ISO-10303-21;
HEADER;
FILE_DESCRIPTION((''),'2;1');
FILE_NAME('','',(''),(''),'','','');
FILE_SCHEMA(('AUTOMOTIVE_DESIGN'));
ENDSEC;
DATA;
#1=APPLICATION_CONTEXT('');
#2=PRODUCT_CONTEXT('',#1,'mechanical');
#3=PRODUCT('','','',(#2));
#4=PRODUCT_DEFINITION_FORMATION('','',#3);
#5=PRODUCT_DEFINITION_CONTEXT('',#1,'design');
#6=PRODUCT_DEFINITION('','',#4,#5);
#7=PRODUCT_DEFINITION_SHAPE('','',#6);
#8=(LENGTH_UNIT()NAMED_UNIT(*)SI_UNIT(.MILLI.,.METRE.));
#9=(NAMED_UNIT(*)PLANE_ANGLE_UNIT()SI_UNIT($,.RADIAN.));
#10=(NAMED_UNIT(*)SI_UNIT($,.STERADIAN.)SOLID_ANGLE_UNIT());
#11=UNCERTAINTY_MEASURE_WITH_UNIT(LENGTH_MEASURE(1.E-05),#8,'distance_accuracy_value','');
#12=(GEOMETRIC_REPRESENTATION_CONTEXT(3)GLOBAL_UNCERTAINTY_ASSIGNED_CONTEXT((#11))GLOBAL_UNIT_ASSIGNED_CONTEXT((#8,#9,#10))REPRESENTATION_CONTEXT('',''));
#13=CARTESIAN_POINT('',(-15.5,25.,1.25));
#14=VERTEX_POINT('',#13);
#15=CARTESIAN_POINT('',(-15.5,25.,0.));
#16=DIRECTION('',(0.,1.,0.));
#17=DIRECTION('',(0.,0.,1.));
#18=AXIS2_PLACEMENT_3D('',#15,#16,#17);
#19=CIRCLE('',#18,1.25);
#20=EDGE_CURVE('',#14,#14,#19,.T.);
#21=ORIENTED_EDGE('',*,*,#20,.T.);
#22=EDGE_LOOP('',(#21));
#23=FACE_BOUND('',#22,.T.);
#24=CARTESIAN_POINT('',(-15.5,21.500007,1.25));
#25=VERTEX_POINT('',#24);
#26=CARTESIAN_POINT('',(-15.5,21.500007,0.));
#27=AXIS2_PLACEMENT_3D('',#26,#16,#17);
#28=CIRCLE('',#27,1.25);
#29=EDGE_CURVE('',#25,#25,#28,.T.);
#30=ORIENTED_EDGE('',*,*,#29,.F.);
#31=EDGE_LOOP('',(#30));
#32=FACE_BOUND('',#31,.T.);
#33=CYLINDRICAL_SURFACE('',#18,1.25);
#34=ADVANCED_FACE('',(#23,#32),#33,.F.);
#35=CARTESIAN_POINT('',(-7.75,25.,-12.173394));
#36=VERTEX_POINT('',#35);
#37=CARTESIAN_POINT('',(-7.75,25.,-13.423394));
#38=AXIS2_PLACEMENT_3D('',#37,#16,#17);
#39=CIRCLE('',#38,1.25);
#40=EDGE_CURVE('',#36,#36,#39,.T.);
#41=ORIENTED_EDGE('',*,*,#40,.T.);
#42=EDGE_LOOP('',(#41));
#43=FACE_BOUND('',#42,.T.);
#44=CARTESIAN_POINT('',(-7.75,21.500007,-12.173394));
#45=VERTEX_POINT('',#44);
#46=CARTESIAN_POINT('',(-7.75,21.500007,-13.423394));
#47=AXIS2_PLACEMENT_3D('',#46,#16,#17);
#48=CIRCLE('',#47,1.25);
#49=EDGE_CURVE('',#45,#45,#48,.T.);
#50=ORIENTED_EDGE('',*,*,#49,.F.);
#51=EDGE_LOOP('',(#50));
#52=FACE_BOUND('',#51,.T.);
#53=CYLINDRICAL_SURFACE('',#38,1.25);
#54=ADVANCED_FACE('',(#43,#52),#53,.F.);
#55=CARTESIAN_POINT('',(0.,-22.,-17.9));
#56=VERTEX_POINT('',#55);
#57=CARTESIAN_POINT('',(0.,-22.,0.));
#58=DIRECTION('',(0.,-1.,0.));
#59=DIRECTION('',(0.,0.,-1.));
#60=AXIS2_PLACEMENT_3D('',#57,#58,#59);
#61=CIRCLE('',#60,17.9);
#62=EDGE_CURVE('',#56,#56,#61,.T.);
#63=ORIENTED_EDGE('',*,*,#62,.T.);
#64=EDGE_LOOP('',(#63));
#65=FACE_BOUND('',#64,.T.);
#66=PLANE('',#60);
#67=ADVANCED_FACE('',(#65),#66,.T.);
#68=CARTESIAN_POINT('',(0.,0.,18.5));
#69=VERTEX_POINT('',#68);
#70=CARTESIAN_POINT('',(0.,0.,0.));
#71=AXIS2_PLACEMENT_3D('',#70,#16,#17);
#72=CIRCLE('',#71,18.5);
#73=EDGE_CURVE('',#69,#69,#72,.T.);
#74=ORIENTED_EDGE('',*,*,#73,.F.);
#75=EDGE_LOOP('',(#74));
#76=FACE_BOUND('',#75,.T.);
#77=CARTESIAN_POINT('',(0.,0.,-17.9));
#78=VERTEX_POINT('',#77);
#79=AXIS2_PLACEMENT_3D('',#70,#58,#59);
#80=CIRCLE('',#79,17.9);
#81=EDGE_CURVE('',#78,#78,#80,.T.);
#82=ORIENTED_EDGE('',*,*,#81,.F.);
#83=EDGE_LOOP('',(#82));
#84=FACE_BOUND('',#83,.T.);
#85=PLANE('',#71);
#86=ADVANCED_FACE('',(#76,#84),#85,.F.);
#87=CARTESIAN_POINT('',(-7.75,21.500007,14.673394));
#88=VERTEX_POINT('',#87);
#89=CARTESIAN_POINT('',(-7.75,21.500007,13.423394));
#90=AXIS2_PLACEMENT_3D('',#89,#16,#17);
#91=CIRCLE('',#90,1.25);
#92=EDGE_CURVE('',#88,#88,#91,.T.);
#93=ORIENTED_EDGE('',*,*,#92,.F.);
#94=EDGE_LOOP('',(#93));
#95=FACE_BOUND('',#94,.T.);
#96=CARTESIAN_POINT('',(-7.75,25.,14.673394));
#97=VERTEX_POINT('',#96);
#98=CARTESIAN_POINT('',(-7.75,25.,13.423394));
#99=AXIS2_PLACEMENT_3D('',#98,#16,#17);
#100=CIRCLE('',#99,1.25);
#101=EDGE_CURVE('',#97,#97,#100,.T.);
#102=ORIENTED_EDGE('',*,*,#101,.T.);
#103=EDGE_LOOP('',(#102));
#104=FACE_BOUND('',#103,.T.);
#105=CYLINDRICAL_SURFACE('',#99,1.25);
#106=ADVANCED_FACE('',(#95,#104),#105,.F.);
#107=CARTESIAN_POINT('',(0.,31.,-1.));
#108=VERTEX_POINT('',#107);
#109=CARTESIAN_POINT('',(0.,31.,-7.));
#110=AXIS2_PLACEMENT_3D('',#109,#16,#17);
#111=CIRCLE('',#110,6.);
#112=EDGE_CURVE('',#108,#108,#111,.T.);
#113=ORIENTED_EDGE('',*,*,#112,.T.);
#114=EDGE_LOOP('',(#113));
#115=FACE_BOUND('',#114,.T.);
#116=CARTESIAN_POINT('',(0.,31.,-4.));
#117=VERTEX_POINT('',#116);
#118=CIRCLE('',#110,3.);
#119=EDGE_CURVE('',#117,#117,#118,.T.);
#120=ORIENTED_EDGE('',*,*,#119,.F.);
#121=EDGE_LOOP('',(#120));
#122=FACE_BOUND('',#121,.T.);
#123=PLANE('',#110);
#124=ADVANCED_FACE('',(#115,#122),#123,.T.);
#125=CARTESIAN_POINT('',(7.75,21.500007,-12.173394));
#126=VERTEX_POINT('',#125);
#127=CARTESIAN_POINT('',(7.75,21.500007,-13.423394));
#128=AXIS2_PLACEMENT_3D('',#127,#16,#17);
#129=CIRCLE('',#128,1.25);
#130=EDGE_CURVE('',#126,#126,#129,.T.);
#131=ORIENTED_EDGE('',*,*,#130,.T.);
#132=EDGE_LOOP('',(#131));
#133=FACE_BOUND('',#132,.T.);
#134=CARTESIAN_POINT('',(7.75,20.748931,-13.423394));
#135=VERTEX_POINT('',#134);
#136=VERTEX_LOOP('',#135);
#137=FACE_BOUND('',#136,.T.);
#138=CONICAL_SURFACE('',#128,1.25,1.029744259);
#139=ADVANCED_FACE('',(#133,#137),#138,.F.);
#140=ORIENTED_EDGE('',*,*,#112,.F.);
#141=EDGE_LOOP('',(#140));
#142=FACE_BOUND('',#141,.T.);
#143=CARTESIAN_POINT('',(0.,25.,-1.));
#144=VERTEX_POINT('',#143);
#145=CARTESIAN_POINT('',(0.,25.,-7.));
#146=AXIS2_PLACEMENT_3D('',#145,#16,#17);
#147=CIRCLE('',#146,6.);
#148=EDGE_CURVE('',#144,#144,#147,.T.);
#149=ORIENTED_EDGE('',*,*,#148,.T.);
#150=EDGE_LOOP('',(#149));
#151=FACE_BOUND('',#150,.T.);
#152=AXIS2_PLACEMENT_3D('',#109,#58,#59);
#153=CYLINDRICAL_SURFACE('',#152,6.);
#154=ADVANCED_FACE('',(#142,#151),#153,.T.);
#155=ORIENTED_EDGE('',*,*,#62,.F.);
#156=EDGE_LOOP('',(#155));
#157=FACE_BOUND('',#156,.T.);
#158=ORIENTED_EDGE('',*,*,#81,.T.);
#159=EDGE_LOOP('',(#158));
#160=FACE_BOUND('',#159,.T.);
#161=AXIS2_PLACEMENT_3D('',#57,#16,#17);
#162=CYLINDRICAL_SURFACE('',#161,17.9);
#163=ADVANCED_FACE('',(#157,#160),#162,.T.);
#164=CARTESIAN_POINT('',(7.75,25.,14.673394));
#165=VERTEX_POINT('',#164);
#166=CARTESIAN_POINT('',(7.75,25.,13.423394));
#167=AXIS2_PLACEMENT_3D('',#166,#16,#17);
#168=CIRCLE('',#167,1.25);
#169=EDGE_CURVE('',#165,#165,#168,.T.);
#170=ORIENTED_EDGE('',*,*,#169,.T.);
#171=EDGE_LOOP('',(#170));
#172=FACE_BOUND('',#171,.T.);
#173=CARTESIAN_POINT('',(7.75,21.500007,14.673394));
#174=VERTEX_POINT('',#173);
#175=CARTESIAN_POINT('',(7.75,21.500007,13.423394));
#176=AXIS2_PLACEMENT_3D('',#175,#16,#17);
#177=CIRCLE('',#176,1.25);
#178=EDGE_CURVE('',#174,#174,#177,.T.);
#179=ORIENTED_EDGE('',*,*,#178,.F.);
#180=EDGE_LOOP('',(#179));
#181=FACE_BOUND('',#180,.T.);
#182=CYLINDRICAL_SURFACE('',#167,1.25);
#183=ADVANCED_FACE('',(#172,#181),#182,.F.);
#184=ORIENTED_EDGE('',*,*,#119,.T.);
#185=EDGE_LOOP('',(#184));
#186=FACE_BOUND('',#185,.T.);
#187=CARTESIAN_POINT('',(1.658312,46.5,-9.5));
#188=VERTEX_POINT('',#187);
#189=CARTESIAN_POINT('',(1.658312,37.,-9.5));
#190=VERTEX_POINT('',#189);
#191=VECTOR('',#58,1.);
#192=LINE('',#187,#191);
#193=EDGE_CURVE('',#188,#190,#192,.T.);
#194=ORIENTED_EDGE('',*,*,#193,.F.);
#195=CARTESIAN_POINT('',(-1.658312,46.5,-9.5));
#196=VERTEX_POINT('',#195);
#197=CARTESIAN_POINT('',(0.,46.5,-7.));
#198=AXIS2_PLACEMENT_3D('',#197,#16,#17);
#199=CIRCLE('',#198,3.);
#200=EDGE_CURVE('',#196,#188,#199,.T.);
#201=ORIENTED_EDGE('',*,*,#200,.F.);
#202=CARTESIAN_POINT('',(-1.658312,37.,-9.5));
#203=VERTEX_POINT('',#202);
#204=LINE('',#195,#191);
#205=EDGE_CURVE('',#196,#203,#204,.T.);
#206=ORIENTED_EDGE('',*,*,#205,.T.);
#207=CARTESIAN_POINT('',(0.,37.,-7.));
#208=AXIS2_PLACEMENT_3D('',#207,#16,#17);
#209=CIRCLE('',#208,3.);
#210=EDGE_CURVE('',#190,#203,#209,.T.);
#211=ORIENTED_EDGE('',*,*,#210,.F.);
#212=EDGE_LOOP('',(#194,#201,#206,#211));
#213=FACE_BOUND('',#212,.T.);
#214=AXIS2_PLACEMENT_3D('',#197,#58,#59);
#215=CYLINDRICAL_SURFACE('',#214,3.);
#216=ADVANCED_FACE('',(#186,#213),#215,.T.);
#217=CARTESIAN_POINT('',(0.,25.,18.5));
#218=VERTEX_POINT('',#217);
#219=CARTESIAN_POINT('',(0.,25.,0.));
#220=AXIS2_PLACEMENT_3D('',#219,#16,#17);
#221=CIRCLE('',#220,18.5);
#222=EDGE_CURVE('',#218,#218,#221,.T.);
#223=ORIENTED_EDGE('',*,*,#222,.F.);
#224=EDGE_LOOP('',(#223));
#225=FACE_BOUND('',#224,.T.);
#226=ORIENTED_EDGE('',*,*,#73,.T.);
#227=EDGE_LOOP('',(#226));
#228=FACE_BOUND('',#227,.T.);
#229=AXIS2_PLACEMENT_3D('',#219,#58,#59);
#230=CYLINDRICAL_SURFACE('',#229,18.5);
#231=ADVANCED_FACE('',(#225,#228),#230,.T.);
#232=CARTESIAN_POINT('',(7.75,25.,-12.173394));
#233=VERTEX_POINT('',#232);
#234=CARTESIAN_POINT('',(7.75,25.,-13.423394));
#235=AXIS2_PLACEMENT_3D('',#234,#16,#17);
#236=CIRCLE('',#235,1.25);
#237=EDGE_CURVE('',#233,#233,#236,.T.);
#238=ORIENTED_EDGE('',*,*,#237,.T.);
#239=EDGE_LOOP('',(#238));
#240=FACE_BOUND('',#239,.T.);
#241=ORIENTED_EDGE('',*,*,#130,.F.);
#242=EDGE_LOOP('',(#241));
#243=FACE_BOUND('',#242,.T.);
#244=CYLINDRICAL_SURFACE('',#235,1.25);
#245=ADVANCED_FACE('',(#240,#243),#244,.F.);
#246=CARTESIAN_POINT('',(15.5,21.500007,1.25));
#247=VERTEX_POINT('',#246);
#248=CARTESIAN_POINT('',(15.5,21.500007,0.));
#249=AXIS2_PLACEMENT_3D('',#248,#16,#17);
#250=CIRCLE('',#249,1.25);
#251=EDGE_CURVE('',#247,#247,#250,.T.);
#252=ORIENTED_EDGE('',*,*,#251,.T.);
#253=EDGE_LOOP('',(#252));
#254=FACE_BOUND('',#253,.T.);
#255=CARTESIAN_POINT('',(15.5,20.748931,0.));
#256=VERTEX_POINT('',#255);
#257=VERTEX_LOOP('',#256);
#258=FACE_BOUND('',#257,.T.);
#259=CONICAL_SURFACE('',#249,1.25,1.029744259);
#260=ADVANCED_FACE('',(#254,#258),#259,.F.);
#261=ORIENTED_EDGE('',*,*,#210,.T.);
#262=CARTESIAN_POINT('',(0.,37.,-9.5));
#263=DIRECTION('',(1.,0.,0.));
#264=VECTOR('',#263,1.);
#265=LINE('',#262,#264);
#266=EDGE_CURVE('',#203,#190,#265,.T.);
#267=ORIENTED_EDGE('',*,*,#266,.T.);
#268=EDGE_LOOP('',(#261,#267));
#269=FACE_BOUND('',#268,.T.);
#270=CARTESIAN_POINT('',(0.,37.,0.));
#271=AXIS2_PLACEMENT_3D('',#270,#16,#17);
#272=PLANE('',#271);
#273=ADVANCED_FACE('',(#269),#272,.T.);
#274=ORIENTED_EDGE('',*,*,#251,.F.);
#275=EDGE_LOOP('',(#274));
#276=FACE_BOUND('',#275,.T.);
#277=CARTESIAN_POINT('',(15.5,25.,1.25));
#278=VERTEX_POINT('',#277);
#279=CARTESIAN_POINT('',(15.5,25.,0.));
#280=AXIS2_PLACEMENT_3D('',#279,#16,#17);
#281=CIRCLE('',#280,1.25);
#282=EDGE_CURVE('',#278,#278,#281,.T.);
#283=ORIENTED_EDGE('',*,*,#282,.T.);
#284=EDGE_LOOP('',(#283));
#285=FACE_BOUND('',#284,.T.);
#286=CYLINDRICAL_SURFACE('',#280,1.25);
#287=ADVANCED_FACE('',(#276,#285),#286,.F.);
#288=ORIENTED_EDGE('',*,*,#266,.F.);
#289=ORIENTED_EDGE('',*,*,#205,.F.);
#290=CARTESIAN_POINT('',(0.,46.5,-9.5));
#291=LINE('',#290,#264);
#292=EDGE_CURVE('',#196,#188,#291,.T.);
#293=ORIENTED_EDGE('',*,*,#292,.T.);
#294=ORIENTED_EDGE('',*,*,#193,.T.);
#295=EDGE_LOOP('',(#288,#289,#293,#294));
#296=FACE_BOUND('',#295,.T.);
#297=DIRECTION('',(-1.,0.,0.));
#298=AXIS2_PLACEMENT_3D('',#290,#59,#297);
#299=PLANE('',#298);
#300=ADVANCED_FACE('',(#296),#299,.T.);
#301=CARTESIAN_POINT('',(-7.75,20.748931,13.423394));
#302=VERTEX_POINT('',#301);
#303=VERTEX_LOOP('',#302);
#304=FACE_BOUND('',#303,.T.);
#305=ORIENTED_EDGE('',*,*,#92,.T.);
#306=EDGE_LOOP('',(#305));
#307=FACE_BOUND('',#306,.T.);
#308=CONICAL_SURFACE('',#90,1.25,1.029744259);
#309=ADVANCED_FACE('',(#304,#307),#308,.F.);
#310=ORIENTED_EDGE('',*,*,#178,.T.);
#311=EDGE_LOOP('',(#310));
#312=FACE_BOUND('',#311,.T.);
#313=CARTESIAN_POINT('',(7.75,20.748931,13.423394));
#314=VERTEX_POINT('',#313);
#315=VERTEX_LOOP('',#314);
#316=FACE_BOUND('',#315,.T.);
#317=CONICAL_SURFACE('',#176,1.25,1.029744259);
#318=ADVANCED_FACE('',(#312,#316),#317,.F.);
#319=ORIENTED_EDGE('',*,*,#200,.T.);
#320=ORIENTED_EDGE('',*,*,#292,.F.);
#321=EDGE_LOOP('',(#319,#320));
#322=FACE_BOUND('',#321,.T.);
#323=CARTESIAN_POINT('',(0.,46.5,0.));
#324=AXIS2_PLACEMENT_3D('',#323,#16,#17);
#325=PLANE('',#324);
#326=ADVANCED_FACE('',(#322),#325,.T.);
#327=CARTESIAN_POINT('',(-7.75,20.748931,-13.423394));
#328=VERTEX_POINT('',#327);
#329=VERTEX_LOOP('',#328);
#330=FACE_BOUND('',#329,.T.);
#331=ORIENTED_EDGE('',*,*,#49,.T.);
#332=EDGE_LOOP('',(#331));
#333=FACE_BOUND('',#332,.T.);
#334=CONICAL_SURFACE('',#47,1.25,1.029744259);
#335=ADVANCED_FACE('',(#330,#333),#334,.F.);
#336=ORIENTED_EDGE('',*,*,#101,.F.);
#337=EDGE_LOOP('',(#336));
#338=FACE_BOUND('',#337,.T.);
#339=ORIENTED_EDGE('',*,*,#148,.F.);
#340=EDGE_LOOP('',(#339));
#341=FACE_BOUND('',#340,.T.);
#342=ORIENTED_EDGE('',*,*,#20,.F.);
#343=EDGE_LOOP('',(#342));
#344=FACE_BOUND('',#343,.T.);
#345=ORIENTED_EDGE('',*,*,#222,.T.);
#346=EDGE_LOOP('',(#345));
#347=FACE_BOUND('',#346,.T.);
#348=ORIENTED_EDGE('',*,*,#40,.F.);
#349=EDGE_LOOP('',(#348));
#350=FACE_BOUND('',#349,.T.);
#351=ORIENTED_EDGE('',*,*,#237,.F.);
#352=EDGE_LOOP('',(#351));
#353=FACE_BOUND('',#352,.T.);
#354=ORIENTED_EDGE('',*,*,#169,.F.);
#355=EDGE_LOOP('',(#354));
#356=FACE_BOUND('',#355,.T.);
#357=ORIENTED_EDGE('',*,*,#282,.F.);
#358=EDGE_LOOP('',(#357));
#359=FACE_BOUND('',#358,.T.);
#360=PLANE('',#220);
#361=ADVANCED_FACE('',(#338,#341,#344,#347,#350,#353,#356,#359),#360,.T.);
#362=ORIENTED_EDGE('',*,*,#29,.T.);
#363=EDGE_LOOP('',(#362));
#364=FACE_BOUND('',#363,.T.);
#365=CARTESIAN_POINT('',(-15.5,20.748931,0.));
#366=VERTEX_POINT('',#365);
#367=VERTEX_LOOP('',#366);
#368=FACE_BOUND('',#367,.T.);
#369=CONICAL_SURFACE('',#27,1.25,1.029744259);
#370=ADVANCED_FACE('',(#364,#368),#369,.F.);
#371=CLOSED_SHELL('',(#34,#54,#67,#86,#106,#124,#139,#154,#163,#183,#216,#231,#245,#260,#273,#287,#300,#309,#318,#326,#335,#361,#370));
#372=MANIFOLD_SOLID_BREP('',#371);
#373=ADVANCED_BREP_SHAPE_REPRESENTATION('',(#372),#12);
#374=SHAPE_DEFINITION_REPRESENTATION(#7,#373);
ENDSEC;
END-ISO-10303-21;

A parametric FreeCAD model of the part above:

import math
import FreeCAD as App
import Part
import Sketcher
from FreeCAD import Vector
Q = App.Units.Quantity

doc = App.newDocument("Part")
params = doc.addObject("Spreadsheet::Sheet", "Params")
for row, (alias, value) in enumerate([
    ("sketch1_diameter", "37 mm"),
    ("pad1_length", "25 mm"),
    ("sketch2_diameter", "12 mm"),
    ("pad2_length", "6 mm"),
    ("sketch3_radius", "3 mm"),
    ("pad3_length", "15.5 mm"),
    ("sketch4_radius", "3 mm"),
    ("pad4_length", "6 mm"),
    ("sketch5_diameter", "2.5 mm"),
    ("hole_diameter", "2.5 mm"),
    ("hole_depth", "3.499993 mm"),
    ("sketch6_diameter", "35.8 mm"),
    ("pad5_length", "22 mm"),
], start=1):
    params.set(f"A{row}", alias)
    params.set(f"B{row}", "=" + value)
    params.setAlias(f"B{row}", alias)

body = doc.addObject("PartDesign::Body", "Body")

sketch1 = doc.addObject("Sketcher::SketchObject", "Sketch")
body.addObject(sketch1)
sketch1.AttachmentSupport = (doc.XZ_Plane, [""])
sketch1.MapMode = "FlatFace"
sketch1.addGeometry(Part.Circle(Vector(0, 0, 0), Vector(0, 0, 1), 18), False)
sketch1.addConstraint(Sketcher.Constraint("Coincident", 0, 3, -1, 1))
sketch1.addConstraint(Sketcher.Constraint("Diameter", 0, Q("37 mm")))
sketch1.setExpression("Constraints[1]", "Params.sketch1_diameter")
pad1 = doc.addObject("PartDesign::Pad", "Pad")
body.addObject(pad1)
pad1.Profile = sketch1
pad1.setExpression("Length", "Params.pad1_length")
pad1.Reversed = True

sketch2 = doc.addObject("Sketcher::SketchObject", "Sketch001")
body.addObject(sketch2)
sketch2.AttachmentSupport = (doc.XZ_Plane, [""])
sketch2.MapMode = "FlatFace"
sketch2.AttachmentOffset = App.Placement(Vector(0, 0, -25), App.Rotation())
sketch2.addGeometry(Part.Circle(Vector(0, -7, 0), Vector(0, 0, 1), 6), False)
sketch2.addConstraint(Sketcher.Constraint("PointOnObject", 0, 3, -2))
sketch2.addConstraint(Sketcher.Constraint("Diameter", 0, Q("12 mm")))
sketch2.addConstraint(Sketcher.Constraint("DistanceY", 0, 3, -1, 1, Q("7 mm")))
sketch2.setExpression("Constraints[1]", "Params.sketch2_diameter")
pad2 = doc.addObject("PartDesign::Pad", "Pad001")
body.addObject(pad2)
pad2.Profile = sketch2
pad2.setExpression("Length", "Params.pad2_length")
pad2.Reversed = True

sketch3 = doc.addObject("Sketcher::SketchObject", "Sketch002")
body.addObject(sketch3)
sketch3.AttachmentSupport = (doc.XZ_Plane, [""])
sketch3.MapMode = "FlatFace"
sketch3.AttachmentOffset = App.Placement(Vector(0, 0, -31), App.Rotation())
sketch3.addGeometry(Part.LineSegment(Vector(1.7, -9.5, 0), Vector(-1.7, -9.5, 0)), False)
sketch3.addGeometry(Part.ArcOfCircle(Part.Circle(Vector(0, -7, 0), Vector(0, 0, 1), 3), math.radians(-56), math.radians(236)), False)
sketch3.addConstraint(Sketcher.Constraint("Coincident", 0, 1, 1, 1))
sketch3.addConstraint(Sketcher.Constraint("Coincident", 1, 2, 0, 2))
sketch3.addConstraint(Sketcher.Constraint("Horizontal", 0))
sketch3.addConstraint(Sketcher.Constraint("PointOnObject", 1, 3, -2))
sketch3.addConstraint(Sketcher.Constraint("Radius", 1, Q("3 mm")))
sketch3.addConstraint(Sketcher.Constraint("DistanceY", 1, 3, -1, 1, Q("7 mm")))
sketch3.addConstraint(Sketcher.Constraint("DistanceY", 0, 1, -1, 1, Q("9.5 mm")))
sketch3.setExpression("Constraints[4]", "Params.sketch3_radius")
pad3 = doc.addObject("PartDesign::Pad", "Pad002")
body.addObject(pad3)
pad3.Profile = sketch3
pad3.setExpression("Length", "Params.pad3_length")
pad3.Reversed = True

sketch4 = doc.addObject("Sketcher::SketchObject", "Sketch003")
body.addObject(sketch4)
sketch4.AttachmentSupport = (doc.XZ_Plane, [""])
sketch4.MapMode = "FlatFace"
sketch4.AttachmentOffset = App.Placement(Vector(0, 0, -31), App.Rotation())
sketch4.addGeometry(Part.LineSegment(Vector(-1.7, -9.5, 0), Vector(1.7, -9.5, 0)), False)
sketch4.addGeometry(Part.ArcOfCircle(Part.Circle(Vector(0, -7, 0), Vector(0, 0, 1), 3), math.radians(-124), math.radians(-56)), False)
sketch4.addConstraint(Sketcher.Constraint("Coincident", 0, 1, 1, 1))
sketch4.addConstraint(Sketcher.Constraint("Coincident", 1, 2, 0, 2))
sketch4.addConstraint(Sketcher.Constraint("Horizontal", 0))
sketch4.addConstraint(Sketcher.Constraint("PointOnObject", 1, 3, -2))
sketch4.addConstraint(Sketcher.Constraint("Radius", 1, Q("3 mm")))
sketch4.addConstraint(Sketcher.Constraint("DistanceY", 1, 3, -1, 1, Q("7 mm")))
sketch4.addConstraint(Sketcher.Constraint("DistanceY", 0, 1, -1, 1, Q("9.5 mm")))
sketch4.setExpression("Constraints[4]", "Params.sketch4_radius")
pad4 = doc.addObject("PartDesign::Pad", "Pad003")
body.addObject(pad4)
pad4.Profile = sketch4
pad4.setExpression("Length", "Params.pad4_length")
pad4.Reversed = True

sketch5 = doc.addObject("Sketcher::SketchObject", "Sketch004")
body.addObject(sketch5)
sketch5.AttachmentSupport = (doc.XZ_Plane, [""])
sketch5.MapMode = "FlatFace"
sketch5.AttachmentOffset = App.Placement(Vector(0, 0, -25), App.Rotation())
sketch5.addGeometry(Part.Circle(Vector(-15.5, 0, 0), Vector(0, 0, 1), 1.2), False)
sketch5.addGeometry(Part.Circle(Vector(-7.7, -13.4, 0), Vector(0, 0, 1), 1.2), False)
sketch5.addGeometry(Part.Circle(Vector(7.7, -13.4, 0), Vector(0, 0, 1), 1.2), False)
sketch5.addGeometry(Part.Circle(Vector(15.5, 0, 0), Vector(0, 0, 1), 1.2), False)
sketch5.addGeometry(Part.Circle(Vector(7.7, 13.4, 0), Vector(0, 0, 1), 1.2), False)
sketch5.addGeometry(Part.Circle(Vector(-7.7, 13.4, 0), Vector(0, 0, 1), 1.2), False)
sketch5.addConstraint(Sketcher.Constraint("Equal", 0, 1))
sketch5.addConstraint(Sketcher.Constraint("Equal", 1, 2))
sketch5.addConstraint(Sketcher.Constraint("Equal", 2, 3))
sketch5.addConstraint(Sketcher.Constraint("Equal", 3, 4))
sketch5.addConstraint(Sketcher.Constraint("Equal", 4, 5))
sketch5.addConstraint(Sketcher.Constraint("Symmetric", 0, 3, 3, 3, -1, 1))
sketch5.addConstraint(Sketcher.Constraint("Symmetric", 1, 3, 4, 3, -1, 1))
sketch5.addConstraint(Sketcher.Constraint("Symmetric", 2, 3, 5, 3, -1, 1))
sketch5.addConstraint(Sketcher.Constraint("Symmetric", 1, 3, 2, 3, -2))
sketch5.addConstraint(Sketcher.Constraint("PointOnObject", 0, 3, -1))
sketch5.addConstraint(Sketcher.Constraint("Diameter", 0, Q("2.5 mm")))
sketch5.addConstraint(Sketcher.Constraint("DistanceX", 0, 3, 3, 3, Q("31 mm")))
sketch5.addConstraint(Sketcher.Constraint("DistanceX", 1, 3, 2, 3, Q("15.5 mm")))
sketch5.addConstraint(Sketcher.Constraint("DistanceY", 1, 3, -1, 1, Q("13.423394 mm")))
sketch5.setExpression("Constraints[10]", "Params.sketch5_diameter")
doc.recompute()
hole = doc.addObject("PartDesign::Hole", "Hole")
body.addObject(hole)
hole.Profile = sketch5
hole.ThreadType = "None"
hole.setExpression("Diameter", "Params.hole_diameter")
hole.DepthType = "Dimension"
hole.setExpression("Depth", "Params.hole_depth")
hole.DrillPoint = "Angled"
hole.DrillPointAngle = 118
hole.Reversed = True

sketch6 = doc.addObject("Sketcher::SketchObject", "Sketch005")
body.addObject(sketch6)
sketch6.AttachmentSupport = (doc.XZ_Plane, [""])
sketch6.MapMode = "FlatFace"
sketch6.addGeometry(Part.Circle(Vector(0, 0, 0), Vector(0, 0, 1), 18), False)
sketch6.addConstraint(Sketcher.Constraint("Coincident", 0, 3, -1, 1))
sketch6.addConstraint(Sketcher.Constraint("Diameter", 0, Q("35.8 mm")))
sketch6.setExpression("Constraints[1]", "Params.sketch6_diameter")
pad5 = doc.addObject("PartDesign::Pad", "Pad004")
body.addObject(pad5)
pad5.Profile = sketch6
pad5.setExpression("Length", "Params.pad5_length")

doc.recompute()
